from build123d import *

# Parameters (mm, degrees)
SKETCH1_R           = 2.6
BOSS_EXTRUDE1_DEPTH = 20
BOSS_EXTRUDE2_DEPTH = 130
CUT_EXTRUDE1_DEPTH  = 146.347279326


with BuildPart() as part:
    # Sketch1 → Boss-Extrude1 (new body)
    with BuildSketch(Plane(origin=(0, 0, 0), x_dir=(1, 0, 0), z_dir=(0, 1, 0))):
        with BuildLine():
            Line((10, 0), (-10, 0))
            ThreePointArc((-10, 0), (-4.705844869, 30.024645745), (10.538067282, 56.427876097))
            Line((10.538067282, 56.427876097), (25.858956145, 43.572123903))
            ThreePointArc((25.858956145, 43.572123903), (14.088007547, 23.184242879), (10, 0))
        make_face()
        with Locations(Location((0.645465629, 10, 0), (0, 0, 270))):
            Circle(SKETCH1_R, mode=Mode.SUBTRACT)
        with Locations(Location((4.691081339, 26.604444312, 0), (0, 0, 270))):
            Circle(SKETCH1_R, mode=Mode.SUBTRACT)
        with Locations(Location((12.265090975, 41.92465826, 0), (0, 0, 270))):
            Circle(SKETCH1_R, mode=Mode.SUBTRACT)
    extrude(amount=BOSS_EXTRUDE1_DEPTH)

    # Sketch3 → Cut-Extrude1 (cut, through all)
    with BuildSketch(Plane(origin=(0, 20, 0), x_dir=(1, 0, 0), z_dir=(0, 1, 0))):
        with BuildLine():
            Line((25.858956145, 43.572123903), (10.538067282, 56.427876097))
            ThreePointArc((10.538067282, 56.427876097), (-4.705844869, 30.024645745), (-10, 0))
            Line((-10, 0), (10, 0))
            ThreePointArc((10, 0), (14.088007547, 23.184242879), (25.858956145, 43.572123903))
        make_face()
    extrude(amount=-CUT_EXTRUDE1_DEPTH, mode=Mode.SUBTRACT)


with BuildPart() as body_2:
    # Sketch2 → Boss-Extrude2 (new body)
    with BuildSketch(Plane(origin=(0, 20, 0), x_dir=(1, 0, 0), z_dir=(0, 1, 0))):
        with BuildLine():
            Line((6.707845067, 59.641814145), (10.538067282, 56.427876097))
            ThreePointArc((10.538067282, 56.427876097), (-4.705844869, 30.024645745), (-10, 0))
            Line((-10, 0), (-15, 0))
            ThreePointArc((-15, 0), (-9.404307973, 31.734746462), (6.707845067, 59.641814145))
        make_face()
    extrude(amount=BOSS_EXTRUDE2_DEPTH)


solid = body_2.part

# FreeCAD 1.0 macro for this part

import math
import FreeCAD as App
import Part
import Sketcher
Q = App.Units.Quantity

doc = App.newDocument("Part")
body = doc.addObject("PartDesign::Body", "Body")

# Sketch on XZ plane
sketch1 = body.newObject("Sketcher::SketchObject", "Sketch")
sketch1.AttachmentSupport = (doc.getObject("XZ_Plane"), [""])
sketch1.MapMode = "FlatFace"
sketch1.addGeometry(Part.LineSegment(App.Vector(-10, 0, 0), App.Vector(10, 0, 0)), False)
sketch1.addGeometry(Part.ArcOfCircle(Part.Circle(App.Vector(77.786191, 0, 0), App.Vector(0, 0, 1), 67.786191), math.radians(180), math.radians(220)), False)
sketch1.addGeometry(Part.LineSegment(App.Vector(25.858956, -43.572124, 0), App.Vector(10.538067, -56.427876, 0)), False)
sketch1.addGeometry(Part.ArcOfCircle(Part.Circle(App.Vector(77.786191, 0, 0), App.Vector(0, 0, 1), 87.786191), math.radians(180), math.radians(220)), False)
sketch1.addGeometry(Part.Circle(App.Vector(0.645466, -10, 0), App.Vector(0, 0, 1), 2.6), False)
sketch1.addGeometry(Part.Circle(App.Vector(12.265091, -41.924658, 0), App.Vector(0, 0, 1), 2.6), False)
sketch1.addGeometry(Part.Circle(App.Vector(4.691081, -26.604444, 0), App.Vector(0, 0, 1), 2.6), False)
sketch1.addConstraint(Sketcher.Constraint("Coincident", 0, 2, 1, 1))
sketch1.addConstraint(Sketcher.Constraint("Coincident", 1, 2, 2, 1))
sketch1.addConstraint(Sketcher.Constraint("Coincident", 2, 2, 3, 2))
sketch1.addConstraint(Sketcher.Constraint("Coincident", 3, 1, 0, 1))
sketch1.addConstraint(Sketcher.Constraint("Horizontal", 0))
sketch1.addConstraint(Sketcher.Constraint("Coincident", 3, 3, 1, 3))
sketch1.addConstraint(Sketcher.Constraint("Equal", 4, 5))
sketch1.addConstraint(Sketcher.Constraint("Equal", 5, 6))
sketch1.addConstraint(Sketcher.Constraint("Symmetric", 0, 2, 3, 1, -1, 1))
sketch1.addConstraint(Sketcher.Constraint("PointOnObject", 1, 3, -1))
sketch1.addConstraint(Sketcher.Constraint("Diameter", 4, Q("5.2 mm")))
sketch1.addConstraint(Sketcher.Constraint("DistanceX", 0, 1, 0, 2, Q("20 mm")))
sketch1.addConstraint(Sketcher.Constraint("Angle", 2, Q("-140 deg")))
sketch1.addConstraint(Sketcher.Constraint("DistanceY", 4, 3, -1, 1, Q("10 mm")))
sketch1.addConstraint(Sketcher.Constraint("Radius", 1, Q("67.786191 mm")))
sketch1.addConstraint(Sketcher.Constraint("DistanceX", 5, 3, 1, 3, Q("65.5211 mm")))
sketch1.addConstraint(Sketcher.Constraint("DistanceX", 4, 3, 2, 2, Q("9.892602 mm")))
sketch1.addConstraint(Sketcher.Constraint("DistanceY", 5, 3, -1, 1, Q("41.924658 mm")))
sketch1.addConstraint(Sketcher.Constraint("DistanceX", -1, 1, 6, 3, Q("4.691081 mm")))
sketch1.addConstraint(Sketcher.Constraint("DistanceY", 1, 2, 6, 3, Q("16.96768 mm")))
sketch1.addConstraint(Sketcher.Constraint("DistanceX", -1, 1, 4, 3, Q("0.645466 mm")))
pad1 = body.newObject("PartDesign::Pad", "Pad")
pad1.Profile = sketch1
pad1.Length = 20
pad1.Reversed = True

# Sketch on XZ plane
sketch2 = body.newObject("Sketcher::SketchObject", "Sketch001")
sketch2.AttachmentSupport = (doc.getObject("XZ_Plane"), [""])
sketch2.MapMode = "FlatFace"
sketch2.AttachmentOffset = App.Placement(App.Vector(0, 0, -20), App.Rotation())
sketch2.addGeometry(Part.LineSegment(App.Vector(25.858956, -43.572124, 0), App.Vector(10.538067, -56.427876, 0)), False)
sketch2.addGeometry(Part.ArcOfCircle(Part.Circle(App.Vector(77.786191, 0, 0), App.Vector(0, 0, 1), 87.786191), math.radians(180), math.radians(220)), False)
sketch2.addGeometry(Part.LineSegment(App.Vector(-10, 0, 0), App.Vector(10, 0, 0)), False)
sketch2.addGeometry(Part.ArcOfCircle(Part.Circle(App.Vector(77.786191, 0, 0), App.Vector(0, 0, 1), 67.786191), math.radians(180), math.radians(220)), False)
sketch2.addConstraint(Sketcher.Constraint("Coincident", 0, 2, 1, 2))
sketch2.addConstraint(Sketcher.Constraint("Coincident", 1, 1, 2, 1))
sketch2.addConstraint(Sketcher.Constraint("Coincident", 2, 2, 3, 1))
sketch2.addConstraint(Sketcher.Constraint("Coincident", 3, 2, 0, 1))
sketch2.addConstraint(Sketcher.Constraint("Horizontal", 2))
sketch2.addConstraint(Sketcher.Constraint("Coincident", 3, 3, 1, 3))
sketch2.addConstraint(Sketcher.Constraint("Symmetric", 1, 1, 2, 2, -1, 1))
sketch2.addConstraint(Sketcher.Constraint("PointOnObject", 1, 3, -1))
sketch2.addConstraint(Sketcher.Constraint("DistanceX", 2, 1, 2, 2, Q("20 mm")))
sketch2.addConstraint(Sketcher.Constraint("Angle", 0, Q("-140 deg")))
sketch2.addConstraint(Sketcher.Constraint("Radius", 1, Q("87.786191 mm")))
sketch2.addConstraint(Sketcher.Constraint("DistanceX", -1, 1, 0, 2, Q("10.538067 mm")))
pocket1 = body.newObject("PartDesign::Pocket", "Pocket")
pocket1.Profile = sketch2
pocket1.Type = "ThroughAll"
pocket1.Reversed = True
body2 = doc.addObject("PartDesign::Body", "Body001")

# Sketch on XZ plane
sketch3 = body2.newObject("Sketcher::SketchObject", "Sketch002")
sketch3.AttachmentSupport = (doc.getObject("XZ_Plane001"), [""])
sketch3.MapMode = "FlatFace"
sketch3.AttachmentOffset = App.Placement(App.Vector(0, 0, -20), App.Rotation())
sketch3.addGeometry(Part.LineSegment(App.Vector(10.538067, -56.427876, 0), App.Vector(6.707845, -59.641814, 0)), False)
sketch3.addGeometry(Part.ArcOfCircle(Part.Circle(App.Vector(77.786191, 0, 0), App.Vector(0, 0, 1), 92.786191), math.radians(180), math.radians(220)), False)
sketch3.addGeometry(Part.LineSegment(App.Vector(-15, 0, 0), App.Vector(-10, 0, 0)), False)
sketch3.addGeometry(Part.ArcOfCircle(Part.Circle(App.Vector(77.786191, 0, 0), App.Vector(0, 0, 1), 87.786191), math.radians(180), math.radians(220)), False)
sketch3.addConstraint(Sketcher.Constraint("Coincident", 0, 2, 1, 2))
sketch3.addConstraint(Sketcher.Constraint("Coincident", 1, 1, 2, 1))
sketch3.addConstraint(Sketcher.Constraint("Coincident", 2, 2, 3, 1))
sketch3.addConstraint(Sketcher.Constraint("Coincident", 3, 2, 0, 1))
sketch3.addConstraint(Sketcher.Constraint("Horizontal", 2))
sketch3.addConstraint(Sketcher.Constraint("Coincident", 3, 3, 1, 3))
sketch3.addConstraint(Sketcher.Constraint("PointOnObject", 1, 3, -1))
sketch3.addConstraint(Sketcher.Constraint("PointOnObject", 1, 1, -1))
sketch3.addConstraint(Sketcher.Constraint("DistanceX", 2, 1, 2, 2, Q("5 mm")))
sketch3.addConstraint(Sketcher.Constraint("Angle", 0, Q("-140 deg")))
sketch3.addConstraint(Sketcher.Constraint("DistanceX", 1, 1, -1, 1, Q("15 mm")))
sketch3.addConstraint(Sketcher.Constraint("Radius", 1, Q("92.786191 mm")))
sketch3.addConstraint(Sketcher.Constraint("DistanceX", -1, 1, 0, 2, Q("6.707845 mm")))
pad2 = body2.newObject("PartDesign::Pad", "Pad001")
pad2.Profile = sketch3
pad2.Length = 130
pad2.Reversed = True

doc.recompute()
